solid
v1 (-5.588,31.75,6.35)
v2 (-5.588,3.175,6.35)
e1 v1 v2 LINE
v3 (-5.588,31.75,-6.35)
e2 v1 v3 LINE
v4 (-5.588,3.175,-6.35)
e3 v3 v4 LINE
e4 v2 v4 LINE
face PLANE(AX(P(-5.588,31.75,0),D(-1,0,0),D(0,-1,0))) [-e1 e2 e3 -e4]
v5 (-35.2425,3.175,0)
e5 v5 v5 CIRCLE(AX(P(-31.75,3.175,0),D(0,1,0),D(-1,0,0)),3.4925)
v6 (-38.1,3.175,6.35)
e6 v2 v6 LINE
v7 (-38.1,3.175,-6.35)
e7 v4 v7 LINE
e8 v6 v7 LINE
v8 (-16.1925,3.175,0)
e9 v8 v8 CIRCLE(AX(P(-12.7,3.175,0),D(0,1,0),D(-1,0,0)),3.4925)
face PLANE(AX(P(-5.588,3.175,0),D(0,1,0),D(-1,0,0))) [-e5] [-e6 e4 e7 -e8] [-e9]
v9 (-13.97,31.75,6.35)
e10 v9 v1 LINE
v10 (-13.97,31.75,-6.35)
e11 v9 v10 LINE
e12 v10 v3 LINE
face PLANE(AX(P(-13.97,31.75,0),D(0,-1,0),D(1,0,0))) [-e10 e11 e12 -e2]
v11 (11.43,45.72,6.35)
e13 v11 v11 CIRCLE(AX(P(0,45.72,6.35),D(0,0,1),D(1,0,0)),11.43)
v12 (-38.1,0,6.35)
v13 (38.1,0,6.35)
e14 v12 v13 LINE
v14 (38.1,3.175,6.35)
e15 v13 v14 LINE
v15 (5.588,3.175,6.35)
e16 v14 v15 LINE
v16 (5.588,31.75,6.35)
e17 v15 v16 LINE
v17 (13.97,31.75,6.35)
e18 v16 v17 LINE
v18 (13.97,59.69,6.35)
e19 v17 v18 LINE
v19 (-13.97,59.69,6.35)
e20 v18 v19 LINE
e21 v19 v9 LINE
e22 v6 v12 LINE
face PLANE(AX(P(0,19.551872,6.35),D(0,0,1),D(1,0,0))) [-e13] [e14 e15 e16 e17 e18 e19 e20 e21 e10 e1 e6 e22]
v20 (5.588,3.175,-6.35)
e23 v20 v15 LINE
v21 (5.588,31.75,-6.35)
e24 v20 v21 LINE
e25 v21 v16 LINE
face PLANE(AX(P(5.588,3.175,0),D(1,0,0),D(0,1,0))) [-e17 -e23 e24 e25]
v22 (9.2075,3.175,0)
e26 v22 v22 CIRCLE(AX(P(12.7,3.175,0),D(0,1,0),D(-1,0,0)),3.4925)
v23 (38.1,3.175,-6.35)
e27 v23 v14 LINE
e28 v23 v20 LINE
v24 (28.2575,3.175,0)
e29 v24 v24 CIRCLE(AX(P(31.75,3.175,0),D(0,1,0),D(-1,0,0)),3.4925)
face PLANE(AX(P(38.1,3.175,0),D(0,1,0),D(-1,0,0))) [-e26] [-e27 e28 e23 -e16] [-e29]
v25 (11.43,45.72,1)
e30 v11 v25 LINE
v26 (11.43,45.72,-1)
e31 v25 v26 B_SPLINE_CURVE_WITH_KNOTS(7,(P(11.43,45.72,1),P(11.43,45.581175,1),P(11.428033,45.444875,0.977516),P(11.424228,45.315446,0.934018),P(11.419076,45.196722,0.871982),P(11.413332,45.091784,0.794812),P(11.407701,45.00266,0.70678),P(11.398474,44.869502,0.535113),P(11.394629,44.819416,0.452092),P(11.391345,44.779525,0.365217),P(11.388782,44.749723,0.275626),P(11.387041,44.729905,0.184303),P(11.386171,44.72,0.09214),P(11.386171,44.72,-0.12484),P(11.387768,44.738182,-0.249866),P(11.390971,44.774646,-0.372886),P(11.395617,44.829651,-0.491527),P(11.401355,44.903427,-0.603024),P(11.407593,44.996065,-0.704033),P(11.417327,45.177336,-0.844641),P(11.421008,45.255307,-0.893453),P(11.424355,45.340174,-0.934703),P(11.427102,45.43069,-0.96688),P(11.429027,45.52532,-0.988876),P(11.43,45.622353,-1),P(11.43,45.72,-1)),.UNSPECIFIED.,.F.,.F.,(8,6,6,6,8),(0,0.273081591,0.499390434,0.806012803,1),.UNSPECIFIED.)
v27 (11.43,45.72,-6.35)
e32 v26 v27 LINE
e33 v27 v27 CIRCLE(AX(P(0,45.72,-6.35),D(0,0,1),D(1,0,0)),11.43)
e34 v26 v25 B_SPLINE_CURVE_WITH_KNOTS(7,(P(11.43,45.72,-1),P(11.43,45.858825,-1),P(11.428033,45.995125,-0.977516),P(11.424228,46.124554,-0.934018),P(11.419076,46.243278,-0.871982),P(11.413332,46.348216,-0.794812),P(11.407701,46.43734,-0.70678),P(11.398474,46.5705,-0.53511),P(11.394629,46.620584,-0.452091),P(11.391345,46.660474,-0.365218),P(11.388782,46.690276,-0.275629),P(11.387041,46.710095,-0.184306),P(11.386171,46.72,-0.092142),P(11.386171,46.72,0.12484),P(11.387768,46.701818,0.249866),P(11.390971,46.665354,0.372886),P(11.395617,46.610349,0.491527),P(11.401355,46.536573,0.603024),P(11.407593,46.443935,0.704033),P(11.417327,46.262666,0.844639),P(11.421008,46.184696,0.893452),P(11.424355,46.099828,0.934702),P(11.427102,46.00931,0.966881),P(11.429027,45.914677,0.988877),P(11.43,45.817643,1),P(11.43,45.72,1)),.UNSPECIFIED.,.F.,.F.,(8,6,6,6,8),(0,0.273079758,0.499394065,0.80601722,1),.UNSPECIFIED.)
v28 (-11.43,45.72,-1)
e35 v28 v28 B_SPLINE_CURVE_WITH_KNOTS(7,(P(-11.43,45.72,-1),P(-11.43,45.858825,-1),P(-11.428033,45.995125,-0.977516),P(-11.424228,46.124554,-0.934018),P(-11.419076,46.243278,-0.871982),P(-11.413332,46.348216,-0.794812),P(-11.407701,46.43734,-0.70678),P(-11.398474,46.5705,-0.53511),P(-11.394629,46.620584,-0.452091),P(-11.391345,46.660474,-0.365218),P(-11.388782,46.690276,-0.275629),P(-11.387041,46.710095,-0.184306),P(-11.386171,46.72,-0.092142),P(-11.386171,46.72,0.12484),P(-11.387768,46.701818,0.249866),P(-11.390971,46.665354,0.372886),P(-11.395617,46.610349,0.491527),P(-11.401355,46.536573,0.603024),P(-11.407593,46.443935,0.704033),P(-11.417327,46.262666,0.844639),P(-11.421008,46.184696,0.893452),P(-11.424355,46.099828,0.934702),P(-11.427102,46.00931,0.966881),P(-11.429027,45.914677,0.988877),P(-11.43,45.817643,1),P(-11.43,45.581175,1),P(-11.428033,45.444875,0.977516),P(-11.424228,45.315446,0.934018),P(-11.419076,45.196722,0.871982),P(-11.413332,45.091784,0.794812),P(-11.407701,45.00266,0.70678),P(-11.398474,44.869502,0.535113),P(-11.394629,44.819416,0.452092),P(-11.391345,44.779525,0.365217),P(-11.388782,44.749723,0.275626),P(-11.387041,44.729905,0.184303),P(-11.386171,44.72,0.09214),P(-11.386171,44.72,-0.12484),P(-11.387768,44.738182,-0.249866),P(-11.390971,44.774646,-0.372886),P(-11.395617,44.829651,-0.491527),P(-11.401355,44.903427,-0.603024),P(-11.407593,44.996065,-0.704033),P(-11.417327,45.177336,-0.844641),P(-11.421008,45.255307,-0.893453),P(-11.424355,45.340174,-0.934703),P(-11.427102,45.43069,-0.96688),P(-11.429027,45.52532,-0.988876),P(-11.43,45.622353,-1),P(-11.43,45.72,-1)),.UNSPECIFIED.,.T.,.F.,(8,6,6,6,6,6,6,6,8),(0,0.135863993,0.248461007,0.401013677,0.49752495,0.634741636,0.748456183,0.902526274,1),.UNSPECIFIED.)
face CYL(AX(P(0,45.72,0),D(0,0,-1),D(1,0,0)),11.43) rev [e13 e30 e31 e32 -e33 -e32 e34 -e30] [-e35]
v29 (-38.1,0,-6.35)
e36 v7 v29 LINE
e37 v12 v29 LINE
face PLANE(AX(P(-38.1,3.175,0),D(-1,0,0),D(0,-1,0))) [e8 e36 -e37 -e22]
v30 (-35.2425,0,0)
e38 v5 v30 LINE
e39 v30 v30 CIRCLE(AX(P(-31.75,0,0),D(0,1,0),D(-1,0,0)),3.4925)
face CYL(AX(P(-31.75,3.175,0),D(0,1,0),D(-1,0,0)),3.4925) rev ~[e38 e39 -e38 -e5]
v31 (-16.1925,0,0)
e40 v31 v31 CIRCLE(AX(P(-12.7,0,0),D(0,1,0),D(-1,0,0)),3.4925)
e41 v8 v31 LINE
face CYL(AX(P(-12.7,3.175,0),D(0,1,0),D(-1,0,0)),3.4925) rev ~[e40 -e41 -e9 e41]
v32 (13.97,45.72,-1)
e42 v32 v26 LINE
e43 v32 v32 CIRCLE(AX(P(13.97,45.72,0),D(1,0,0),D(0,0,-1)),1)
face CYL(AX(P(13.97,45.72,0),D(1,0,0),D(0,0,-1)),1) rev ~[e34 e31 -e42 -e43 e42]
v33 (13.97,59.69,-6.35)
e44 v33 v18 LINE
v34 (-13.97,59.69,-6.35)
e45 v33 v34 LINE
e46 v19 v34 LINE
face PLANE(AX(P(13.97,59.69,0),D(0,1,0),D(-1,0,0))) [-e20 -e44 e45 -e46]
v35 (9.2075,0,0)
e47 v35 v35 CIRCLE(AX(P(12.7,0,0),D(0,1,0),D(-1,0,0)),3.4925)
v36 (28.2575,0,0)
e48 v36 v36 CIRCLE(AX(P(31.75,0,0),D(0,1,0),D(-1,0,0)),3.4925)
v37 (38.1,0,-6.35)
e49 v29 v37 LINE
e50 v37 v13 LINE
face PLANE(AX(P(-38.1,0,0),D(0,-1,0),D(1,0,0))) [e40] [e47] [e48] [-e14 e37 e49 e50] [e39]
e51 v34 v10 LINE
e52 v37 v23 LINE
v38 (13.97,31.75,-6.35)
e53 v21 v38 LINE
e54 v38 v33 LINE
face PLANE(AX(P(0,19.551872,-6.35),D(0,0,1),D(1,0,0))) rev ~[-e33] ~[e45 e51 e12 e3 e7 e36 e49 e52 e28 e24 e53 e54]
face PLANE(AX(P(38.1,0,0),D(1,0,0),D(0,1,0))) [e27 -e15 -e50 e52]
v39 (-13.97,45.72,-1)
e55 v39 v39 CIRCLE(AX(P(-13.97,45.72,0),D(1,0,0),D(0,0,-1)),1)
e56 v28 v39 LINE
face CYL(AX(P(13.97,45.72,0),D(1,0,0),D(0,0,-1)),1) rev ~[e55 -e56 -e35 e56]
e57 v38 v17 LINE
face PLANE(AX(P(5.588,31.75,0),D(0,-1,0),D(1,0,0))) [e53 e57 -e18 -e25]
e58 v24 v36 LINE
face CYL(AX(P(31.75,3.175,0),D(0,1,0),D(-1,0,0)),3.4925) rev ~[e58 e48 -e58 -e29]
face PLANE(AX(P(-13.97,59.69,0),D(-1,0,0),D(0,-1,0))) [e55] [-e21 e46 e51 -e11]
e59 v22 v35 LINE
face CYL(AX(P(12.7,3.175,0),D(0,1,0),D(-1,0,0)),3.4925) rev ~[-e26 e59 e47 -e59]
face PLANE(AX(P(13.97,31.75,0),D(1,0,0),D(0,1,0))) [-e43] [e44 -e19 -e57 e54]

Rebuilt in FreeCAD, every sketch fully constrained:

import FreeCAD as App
import Part
import Sketcher
Q = App.Units.Quantity


def add_polygon(sketch, points):
    """Adds a closed chain of lines whose ends are joined by coincident constraints."""
    first, n = sketch.GeometryCount, len(points)
    for a, b in zip(points, points[1:] + points[:1]):
        sketch.addGeometry(Part.LineSegment(App.Vector(*a, 0), App.Vector(*b, 0)), False)
    for i in range(n):
        sketch.addConstraint(Sketcher.Constraint("Coincident", first + i, 2, first + (i + 1) % n, 1))

doc = App.newDocument("Part")
params = doc.addObject("Spreadsheet::Sheet", "Params")
for row, (alias, value) in enumerate([
    ("sketch1_diameter", "0.9 in"),
    ("sketch1_width", "3 in"),
    ("sketch1_width2", "1.1 in"),
    ("sketch1_width3", "1.28 in"),
    ("sketch1_height", "0.125 in"),
    ("pad1_length", "0.5 in"),
    ("sketch2_diameter", "0.275 in"),
], start=1):
    params.set(f"A{row}", alias)
    params.set(f"B{row}", "=" + value)
    params.setAlias(f"B{row}", alias)

body = doc.addObject("PartDesign::Body", "Body")

# Sketch on XY plane
sketch1 = body.newObject("Sketcher::SketchObject", "Sketch")
sketch1.AttachmentSupport = (doc.getObject("XY_Plane"), [""])
sketch1.MapMode = "FlatFace"
add_polygon(sketch1, [(-38.1, 0), (38.1, 0), (38.1, 3.175), (5.588, 3.175), (5.588, 31.75), (13.97, 31.75), (13.97, 59.69), (-13.97, 59.69), (-13.97, 31.75), (-5.588, 31.75), (-5.588, 3.175), (-38.1, 3.175)])  # lines 0-11
sketch1.addGeometry(Part.Circle(App.Vector(0, 45.72, 0), App.Vector(0, 0, 1), 11.43), False)  # 12
sketch1.addConstraint([
    Sketcher.Constraint("Horizontal", 0),
    Sketcher.Constraint("Vertical", 1),
    Sketcher.Constraint("Horizontal", 2),
    Sketcher.Constraint("Vertical", 3),
    Sketcher.Constraint("Horizontal", 4),
    Sketcher.Constraint("Vertical", 5),
    Sketcher.Constraint("Horizontal", 6),
    Sketcher.Constraint("Vertical", 7),
    Sketcher.Constraint("Horizontal", 8),
    Sketcher.Constraint("Vertical", 9),
    Sketcher.Constraint("Horizontal", 10),
    Sketcher.Constraint("Vertical", 11),
    Sketcher.Constraint("Symmetric", 0, 2, 11, 2, -1, 1),
    Sketcher.Constraint("Symmetric", 4, 2, 7, 2, -2),
    Sketcher.Constraint("Symmetric", 2, 2, 9, 2, -2),
    Sketcher.Constraint("PointOnObject", 12, 3, -2),
    Sketcher.Constraint("Equal", 6, 5),
    Sketcher.Constraint("Diameter", 12, Q("0.9 in")),
    Sketcher.Constraint("DistanceX", 0, 1, 0, 2, Q("3 in")),
    Sketcher.Constraint("DistanceX", 6, 2, 6, 1, Q("1.1 in")),
    Sketcher.Constraint("DistanceX", 2, 2, 2, 1, Q("1.28 in")),
    Sketcher.Constraint("DistanceY", -1, 1, 12, 3, Q("1.8 in")),
    Sketcher.Constraint("DistanceY", 1, 1, 1, 2, Q("0.125 in")),
    Sketcher.Constraint("DistanceY", 3, 1, 3, 2, Q("1.125 in")),
])
sketch1.setExpression("Constraints[29]", "Params.sketch1_diameter")
sketch1.setExpression("Constraints[30]", "Params.sketch1_width")
sketch1.setExpression("Constraints[31]", "Params.sketch1_width2")
sketch1.setExpression("Constraints[32]", "Params.sketch1_width3")
sketch1.setExpression("Constraints[34]", "Params.sketch1_height")
pad1 = body.newObject("PartDesign::Pad", "Pad")
pad1.Profile = sketch1
pad1.setExpression("Length", "Params.pad1_length")
pad1.Midplane = True

# Sketch on XZ plane
sketch2 = body.newObject("Sketcher::SketchObject", "Sketch001")
sketch2.AttachmentSupport = (doc.getObject("XZ_Plane"), [""])
sketch2.MapMode = "FlatFace"
sketch2.AttachmentOffset = App.Placement(App.Vector(0, 0, -0.125 * 25.4), App.Rotation())
sketch2.addGeometry([
    Part.Circle(App.Vector(-31.75, 0, 0), App.Vector(0, 0, 1), 3.4925),
    Part.Circle(App.Vector(31.75, 0, 0), App.Vector(0, 0, 1), 3.4925),
    Part.Circle(App.Vector(-12.7, 0, 0), App.Vector(0, 0, 1), 3.4925),
    Part.Circle(App.Vector(12.7, 0, 0), App.Vector(0, 0, 1), 3.4925),
], False)
sketch2.addConstraint([
    Sketcher.Constraint("Equal", 0, 1),
    Sketcher.Constraint("Equal", 1, 2),
    Sketcher.Constraint("Equal", 2, 3),
    Sketcher.Constraint("Symmetric", 0, 3, 1, 3, -1, 1),
    Sketcher.Constraint("Symmetric", 2, 3, 3, 3, -1, 1),
    Sketcher.Constraint("PointOnObject", 0, 3, -1),
    Sketcher.Constraint("PointOnObject", 2, 3, -1),
    Sketcher.Constraint("Diameter", 0, Q("0.275 in")),
    Sketcher.Constraint("DistanceX", 2, 3, 3, 3, Q("1 in")),
    Sketcher.Constraint("DistanceX", 0, 3, 1, 3, Q("2.5 in")),
])
sketch2.setExpression("Constraints[7]", "Params.sketch2_diameter")
pocket1 = body.newObject("PartDesign::Pocket", "Pocket")
pocket1.Profile = sketch2
pocket1.Type = "ThroughAll"
pocket1.Reversed = True

# Sketch on YZ plane
sketch3 = body.newObject("Sketcher::SketchObject", "Sketch002")
sketch3.AttachmentSupport = (doc.getObject("YZ_Plane"), [""])
sketch3.MapMode = "FlatFace"
sketch3.AttachmentOffset = App.Placement(App.Vector(0, 0, 0.55 * 25.4), App.Rotation())
sketch3.addGeometry(Part.Circle(App.Vector(45.72, 0, 0), App.Vector(0, 0, 1), 1), False)
sketch3.addConstraint([
    Sketcher.Constraint("PointOnObject", 0, 3, -1),
    Sketcher.Constraint("DistanceX", -1, 1, 0, 3, Q("1.8 in")),
    Sketcher.Constraint("Diameter", 0, 2.0),
])
pocket2 = body.newObject("PartDesign::Pocket", "Pocket001")
pocket2.Profile = sketch3
pocket2.Type = "ThroughAll"

doc.recompute()
